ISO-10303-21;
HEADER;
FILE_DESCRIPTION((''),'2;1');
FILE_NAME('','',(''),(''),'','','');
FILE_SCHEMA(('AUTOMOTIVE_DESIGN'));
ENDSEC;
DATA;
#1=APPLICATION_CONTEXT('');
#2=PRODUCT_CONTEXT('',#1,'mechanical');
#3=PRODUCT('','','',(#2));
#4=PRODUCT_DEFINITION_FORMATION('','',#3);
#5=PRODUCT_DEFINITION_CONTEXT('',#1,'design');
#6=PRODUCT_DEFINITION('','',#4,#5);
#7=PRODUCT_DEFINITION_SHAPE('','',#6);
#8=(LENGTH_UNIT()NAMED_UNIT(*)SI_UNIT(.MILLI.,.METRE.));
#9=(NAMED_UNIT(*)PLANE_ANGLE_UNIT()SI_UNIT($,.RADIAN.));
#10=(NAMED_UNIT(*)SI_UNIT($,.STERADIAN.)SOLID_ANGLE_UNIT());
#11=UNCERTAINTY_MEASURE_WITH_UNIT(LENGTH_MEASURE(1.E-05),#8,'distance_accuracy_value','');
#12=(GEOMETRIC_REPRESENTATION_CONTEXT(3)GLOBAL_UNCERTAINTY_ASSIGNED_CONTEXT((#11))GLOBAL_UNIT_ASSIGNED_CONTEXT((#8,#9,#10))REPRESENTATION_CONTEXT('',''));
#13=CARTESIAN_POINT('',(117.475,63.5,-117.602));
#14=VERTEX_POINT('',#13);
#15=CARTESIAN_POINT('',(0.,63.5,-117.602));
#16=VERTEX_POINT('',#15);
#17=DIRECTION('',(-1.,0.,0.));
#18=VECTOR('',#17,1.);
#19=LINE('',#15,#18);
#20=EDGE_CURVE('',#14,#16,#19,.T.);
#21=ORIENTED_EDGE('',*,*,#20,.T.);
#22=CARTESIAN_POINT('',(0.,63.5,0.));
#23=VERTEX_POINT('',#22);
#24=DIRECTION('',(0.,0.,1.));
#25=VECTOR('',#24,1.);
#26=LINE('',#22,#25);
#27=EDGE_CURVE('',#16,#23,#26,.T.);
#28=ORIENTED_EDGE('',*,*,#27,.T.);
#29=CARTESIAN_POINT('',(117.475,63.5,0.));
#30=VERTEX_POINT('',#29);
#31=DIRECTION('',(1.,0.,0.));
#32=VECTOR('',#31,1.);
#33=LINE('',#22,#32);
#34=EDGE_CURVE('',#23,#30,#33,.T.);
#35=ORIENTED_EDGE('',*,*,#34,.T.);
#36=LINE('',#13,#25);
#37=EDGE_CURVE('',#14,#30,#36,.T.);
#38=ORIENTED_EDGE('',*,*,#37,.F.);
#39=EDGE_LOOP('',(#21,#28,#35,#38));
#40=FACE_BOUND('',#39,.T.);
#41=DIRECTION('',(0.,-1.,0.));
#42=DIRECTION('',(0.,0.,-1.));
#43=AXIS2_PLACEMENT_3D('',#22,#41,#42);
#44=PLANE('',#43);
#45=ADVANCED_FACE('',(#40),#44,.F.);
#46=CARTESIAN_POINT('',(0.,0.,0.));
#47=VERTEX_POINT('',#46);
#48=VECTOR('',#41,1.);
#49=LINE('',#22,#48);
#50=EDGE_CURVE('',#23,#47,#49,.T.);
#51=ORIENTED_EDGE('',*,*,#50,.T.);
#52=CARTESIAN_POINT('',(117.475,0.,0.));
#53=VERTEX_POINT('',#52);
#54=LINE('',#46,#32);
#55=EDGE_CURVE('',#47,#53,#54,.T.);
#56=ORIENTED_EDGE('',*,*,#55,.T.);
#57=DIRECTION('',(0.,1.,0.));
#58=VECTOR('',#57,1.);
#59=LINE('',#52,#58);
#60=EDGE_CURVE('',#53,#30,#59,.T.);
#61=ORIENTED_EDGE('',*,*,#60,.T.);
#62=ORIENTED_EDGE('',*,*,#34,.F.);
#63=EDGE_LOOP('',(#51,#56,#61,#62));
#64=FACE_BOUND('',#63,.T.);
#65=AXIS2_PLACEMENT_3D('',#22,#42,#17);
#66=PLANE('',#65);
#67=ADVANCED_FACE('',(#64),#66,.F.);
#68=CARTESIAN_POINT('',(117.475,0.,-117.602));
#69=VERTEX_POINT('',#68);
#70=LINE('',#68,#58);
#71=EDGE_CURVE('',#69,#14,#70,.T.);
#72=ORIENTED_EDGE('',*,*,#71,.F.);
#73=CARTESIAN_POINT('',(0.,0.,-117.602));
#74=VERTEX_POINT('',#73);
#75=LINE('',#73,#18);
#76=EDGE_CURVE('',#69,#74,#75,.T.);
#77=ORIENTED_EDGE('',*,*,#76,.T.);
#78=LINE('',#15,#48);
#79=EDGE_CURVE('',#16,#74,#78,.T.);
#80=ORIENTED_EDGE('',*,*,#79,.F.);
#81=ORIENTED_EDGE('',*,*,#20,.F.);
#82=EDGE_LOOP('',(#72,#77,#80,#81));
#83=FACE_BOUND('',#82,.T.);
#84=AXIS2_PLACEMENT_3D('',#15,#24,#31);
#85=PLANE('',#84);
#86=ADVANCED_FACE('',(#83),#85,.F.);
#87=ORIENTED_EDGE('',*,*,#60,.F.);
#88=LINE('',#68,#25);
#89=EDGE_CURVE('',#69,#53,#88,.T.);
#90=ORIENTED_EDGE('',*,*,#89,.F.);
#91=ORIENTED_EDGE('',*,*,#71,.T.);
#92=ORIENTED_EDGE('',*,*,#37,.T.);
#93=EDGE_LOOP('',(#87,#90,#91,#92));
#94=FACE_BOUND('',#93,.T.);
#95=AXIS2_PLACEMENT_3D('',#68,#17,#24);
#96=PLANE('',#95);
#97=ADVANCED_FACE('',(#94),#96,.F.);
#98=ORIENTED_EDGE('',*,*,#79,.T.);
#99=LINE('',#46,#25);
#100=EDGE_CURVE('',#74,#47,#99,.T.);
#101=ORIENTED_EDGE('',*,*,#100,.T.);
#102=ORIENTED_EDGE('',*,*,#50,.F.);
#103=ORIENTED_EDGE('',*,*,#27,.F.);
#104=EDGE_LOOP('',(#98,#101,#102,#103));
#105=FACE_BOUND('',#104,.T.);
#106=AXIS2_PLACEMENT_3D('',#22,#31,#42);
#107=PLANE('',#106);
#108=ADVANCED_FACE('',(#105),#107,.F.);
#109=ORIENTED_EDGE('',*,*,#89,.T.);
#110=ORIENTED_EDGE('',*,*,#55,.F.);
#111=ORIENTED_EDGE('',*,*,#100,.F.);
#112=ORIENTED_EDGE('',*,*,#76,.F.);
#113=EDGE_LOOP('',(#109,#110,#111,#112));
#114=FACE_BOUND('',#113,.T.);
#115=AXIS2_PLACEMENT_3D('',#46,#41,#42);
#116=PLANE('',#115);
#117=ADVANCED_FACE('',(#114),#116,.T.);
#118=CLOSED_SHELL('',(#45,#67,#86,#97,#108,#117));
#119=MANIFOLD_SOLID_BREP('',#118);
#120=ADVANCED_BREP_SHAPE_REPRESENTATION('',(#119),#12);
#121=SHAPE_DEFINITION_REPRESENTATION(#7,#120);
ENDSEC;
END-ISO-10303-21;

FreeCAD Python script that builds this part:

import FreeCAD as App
import Part
import Sketcher
from FreeCAD import Vector
Q = App.Units.Quantity


def add_polygon(sketch, points):
    """Adds a closed chain of lines whose ends are joined by coincident constraints."""
    first, n = sketch.GeometryCount, len(points)
    for a, b in zip(points, points[1:] + points[:1]):
        sketch.addGeometry(Part.LineSegment(App.Vector(*a, 0), App.Vector(*b, 0)), False)
    for i in range(n):
        sketch.addConstraint(Sketcher.Constraint("Coincident", first + i, 2, first + (i + 1) % n, 1))

doc = App.newDocument("Part")
body = doc.addObject("PartDesign::Body", "Body")

sketch1 = body.newObject("Sketcher::SketchObject", "Sketch")
sketch1.AttachmentSupport = (doc.getObject("XZ_Plane"), [""])
sketch1.MapMode = "FlatFace"
add_polygon(sketch1, [(0, -118), (0, 0), (241, 0), (241, -118)])
sketch1.addConstraint(Sketcher.Constraint("Vertical", 0))
sketch1.addConstraint(Sketcher.Constraint("Horizontal", 1))
sketch1.addConstraint(Sketcher.Constraint("Vertical", 2))
sketch1.addConstraint(Sketcher.Constraint("Horizontal", 3))
sketch1.addConstraint(Sketcher.Constraint("Coincident", 0, 2, -1, 1))
sketch1.addConstraint(Sketcher.Constraint("DistanceX", 1, 1, 1, 2, Q("9.5 in")))
sketch1.addConstraint(Sketcher.Constraint("DistanceY", 0, 1, 0, 2, Q("4.63 in")))
pad1 = body.newObject("PartDesign::Pad", "Pad")
pad1.Profile = sketch1
pad1.Length = Q("2.5 in")
pad1.Reversed = True

sketch2 = body.newObject("Sketcher::SketchObject", "Sketch001")
sketch2.AttachmentSupport = (doc.getObject("XZ_Plane"), [""])
sketch2.MapMode = "FlatFace"
sketch2.AttachmentOffset = App.Placement(Vector(0, 0, -2.5 * 25.4), App.Rotation())
add_polygon(sketch2, [(117, -118), (117, 0), (241, 0), (241, -118)])
sketch2.addConstraint(Sketcher.Constraint("Vertical", 0))
sketch2.addConstraint(Sketcher.Constraint("Horizontal", 1))
sketch2.addConstraint(Sketcher.Constraint("Vertical", 2))
sketch2.addConstraint(Sketcher.Constraint("Horizontal", 3))
sketch2.addConstraint(Sketcher.Constraint("PointOnObject", 0, 2, -1))
sketch2.addConstraint(Sketcher.Constraint("DistanceY", 0, 1, 0, 2, Q("4.63 in")))
sketch2.addConstraint(Sketcher.Constraint("DistanceX", -1, 1, 1, 2, Q("9.5 in")))
sketch2.addConstraint(Sketcher.Constraint("DistanceX", 1, 1, 1, 2, Q("4.875 in")))
pocket1 = body.newObject("PartDesign::Pocket", "Pocket")
pocket1.Profile = sketch2
pocket1.Type = "ThroughAll"
pocket1.Reversed = True

doc.recompute()
